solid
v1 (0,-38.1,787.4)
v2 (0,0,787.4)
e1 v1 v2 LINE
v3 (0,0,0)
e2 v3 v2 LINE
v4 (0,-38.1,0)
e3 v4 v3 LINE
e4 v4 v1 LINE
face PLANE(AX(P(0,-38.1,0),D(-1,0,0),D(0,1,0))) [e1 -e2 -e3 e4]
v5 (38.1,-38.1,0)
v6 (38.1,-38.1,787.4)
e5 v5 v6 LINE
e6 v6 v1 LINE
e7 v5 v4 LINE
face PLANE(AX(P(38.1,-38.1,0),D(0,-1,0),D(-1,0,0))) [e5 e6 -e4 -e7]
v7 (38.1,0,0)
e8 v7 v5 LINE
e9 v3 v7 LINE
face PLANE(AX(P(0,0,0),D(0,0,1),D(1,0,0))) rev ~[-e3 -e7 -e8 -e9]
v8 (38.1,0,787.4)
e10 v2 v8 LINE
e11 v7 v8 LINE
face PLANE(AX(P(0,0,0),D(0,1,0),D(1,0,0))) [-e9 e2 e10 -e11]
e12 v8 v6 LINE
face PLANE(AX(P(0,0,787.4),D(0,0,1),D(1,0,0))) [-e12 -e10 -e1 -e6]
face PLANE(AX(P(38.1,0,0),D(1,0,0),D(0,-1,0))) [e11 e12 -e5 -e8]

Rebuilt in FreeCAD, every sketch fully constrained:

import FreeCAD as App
import Part
import Sketcher
from FreeCAD import Vector
Q = App.Units.Quantity

doc = App.newDocument("Part")
body = doc.addObject("PartDesign::Body", "Body")

# Sketch on XY plane
sketch1 = doc.addObject("Sketcher::SketchObject", "Sketch")
body.addObject(sketch1)
sketch1.AttachmentSupport = (doc.XY_Plane, [""])
sketch1.MapMode = "FlatFace"
sketch1.addGeometry(Part.LineSegment(Vector(38.1, 0, 0), Vector(0, 0, 0)), False)
sketch1.addGeometry(Part.LineSegment(Vector(0, 0, 0), Vector(0, -38.1, 0)), False)
sketch1.addGeometry(Part.LineSegment(Vector(0, -38.1, 0), Vector(38.1, -38.1, 0)), False)
sketch1.addGeometry(Part.LineSegment(Vector(38.1, -38.1, 0), Vector(38.1, 0, 0)), False)
sketch1.addConstraint(Sketcher.Constraint("Coincident", 0, 2, 1, 1))
sketch1.addConstraint(Sketcher.Constraint("Coincident", 1, 2, 2, 1))
sketch1.addConstraint(Sketcher.Constraint("Coincident", 2, 2, 3, 1))
sketch1.addConstraint(Sketcher.Constraint("Coincident", 3, 2, 0, 1))
sketch1.addConstraint(Sketcher.Constraint("Horizontal", 0))
sketch1.addConstraint(Sketcher.Constraint("Vertical", 1))
sketch1.addConstraint(Sketcher.Constraint("Horizontal", 2))
sketch1.addConstraint(Sketcher.Constraint("Vertical", 3))
sketch1.addConstraint(Sketcher.Constraint("Coincident", 0, 2, -1, 1))
sketch1.addConstraint(Sketcher.Constraint("Equal", 2, 1))
sketch1.addConstraint(Sketcher.Constraint("DistanceX", 0, 2, 0, 1, Q("1.5 in")))
pad1 = doc.addObject("PartDesign::Pad", "Pad")
body.addObject(pad1)
pad1.Profile = sketch1
pad1.Length = Q("31 in")

doc.recompute()
